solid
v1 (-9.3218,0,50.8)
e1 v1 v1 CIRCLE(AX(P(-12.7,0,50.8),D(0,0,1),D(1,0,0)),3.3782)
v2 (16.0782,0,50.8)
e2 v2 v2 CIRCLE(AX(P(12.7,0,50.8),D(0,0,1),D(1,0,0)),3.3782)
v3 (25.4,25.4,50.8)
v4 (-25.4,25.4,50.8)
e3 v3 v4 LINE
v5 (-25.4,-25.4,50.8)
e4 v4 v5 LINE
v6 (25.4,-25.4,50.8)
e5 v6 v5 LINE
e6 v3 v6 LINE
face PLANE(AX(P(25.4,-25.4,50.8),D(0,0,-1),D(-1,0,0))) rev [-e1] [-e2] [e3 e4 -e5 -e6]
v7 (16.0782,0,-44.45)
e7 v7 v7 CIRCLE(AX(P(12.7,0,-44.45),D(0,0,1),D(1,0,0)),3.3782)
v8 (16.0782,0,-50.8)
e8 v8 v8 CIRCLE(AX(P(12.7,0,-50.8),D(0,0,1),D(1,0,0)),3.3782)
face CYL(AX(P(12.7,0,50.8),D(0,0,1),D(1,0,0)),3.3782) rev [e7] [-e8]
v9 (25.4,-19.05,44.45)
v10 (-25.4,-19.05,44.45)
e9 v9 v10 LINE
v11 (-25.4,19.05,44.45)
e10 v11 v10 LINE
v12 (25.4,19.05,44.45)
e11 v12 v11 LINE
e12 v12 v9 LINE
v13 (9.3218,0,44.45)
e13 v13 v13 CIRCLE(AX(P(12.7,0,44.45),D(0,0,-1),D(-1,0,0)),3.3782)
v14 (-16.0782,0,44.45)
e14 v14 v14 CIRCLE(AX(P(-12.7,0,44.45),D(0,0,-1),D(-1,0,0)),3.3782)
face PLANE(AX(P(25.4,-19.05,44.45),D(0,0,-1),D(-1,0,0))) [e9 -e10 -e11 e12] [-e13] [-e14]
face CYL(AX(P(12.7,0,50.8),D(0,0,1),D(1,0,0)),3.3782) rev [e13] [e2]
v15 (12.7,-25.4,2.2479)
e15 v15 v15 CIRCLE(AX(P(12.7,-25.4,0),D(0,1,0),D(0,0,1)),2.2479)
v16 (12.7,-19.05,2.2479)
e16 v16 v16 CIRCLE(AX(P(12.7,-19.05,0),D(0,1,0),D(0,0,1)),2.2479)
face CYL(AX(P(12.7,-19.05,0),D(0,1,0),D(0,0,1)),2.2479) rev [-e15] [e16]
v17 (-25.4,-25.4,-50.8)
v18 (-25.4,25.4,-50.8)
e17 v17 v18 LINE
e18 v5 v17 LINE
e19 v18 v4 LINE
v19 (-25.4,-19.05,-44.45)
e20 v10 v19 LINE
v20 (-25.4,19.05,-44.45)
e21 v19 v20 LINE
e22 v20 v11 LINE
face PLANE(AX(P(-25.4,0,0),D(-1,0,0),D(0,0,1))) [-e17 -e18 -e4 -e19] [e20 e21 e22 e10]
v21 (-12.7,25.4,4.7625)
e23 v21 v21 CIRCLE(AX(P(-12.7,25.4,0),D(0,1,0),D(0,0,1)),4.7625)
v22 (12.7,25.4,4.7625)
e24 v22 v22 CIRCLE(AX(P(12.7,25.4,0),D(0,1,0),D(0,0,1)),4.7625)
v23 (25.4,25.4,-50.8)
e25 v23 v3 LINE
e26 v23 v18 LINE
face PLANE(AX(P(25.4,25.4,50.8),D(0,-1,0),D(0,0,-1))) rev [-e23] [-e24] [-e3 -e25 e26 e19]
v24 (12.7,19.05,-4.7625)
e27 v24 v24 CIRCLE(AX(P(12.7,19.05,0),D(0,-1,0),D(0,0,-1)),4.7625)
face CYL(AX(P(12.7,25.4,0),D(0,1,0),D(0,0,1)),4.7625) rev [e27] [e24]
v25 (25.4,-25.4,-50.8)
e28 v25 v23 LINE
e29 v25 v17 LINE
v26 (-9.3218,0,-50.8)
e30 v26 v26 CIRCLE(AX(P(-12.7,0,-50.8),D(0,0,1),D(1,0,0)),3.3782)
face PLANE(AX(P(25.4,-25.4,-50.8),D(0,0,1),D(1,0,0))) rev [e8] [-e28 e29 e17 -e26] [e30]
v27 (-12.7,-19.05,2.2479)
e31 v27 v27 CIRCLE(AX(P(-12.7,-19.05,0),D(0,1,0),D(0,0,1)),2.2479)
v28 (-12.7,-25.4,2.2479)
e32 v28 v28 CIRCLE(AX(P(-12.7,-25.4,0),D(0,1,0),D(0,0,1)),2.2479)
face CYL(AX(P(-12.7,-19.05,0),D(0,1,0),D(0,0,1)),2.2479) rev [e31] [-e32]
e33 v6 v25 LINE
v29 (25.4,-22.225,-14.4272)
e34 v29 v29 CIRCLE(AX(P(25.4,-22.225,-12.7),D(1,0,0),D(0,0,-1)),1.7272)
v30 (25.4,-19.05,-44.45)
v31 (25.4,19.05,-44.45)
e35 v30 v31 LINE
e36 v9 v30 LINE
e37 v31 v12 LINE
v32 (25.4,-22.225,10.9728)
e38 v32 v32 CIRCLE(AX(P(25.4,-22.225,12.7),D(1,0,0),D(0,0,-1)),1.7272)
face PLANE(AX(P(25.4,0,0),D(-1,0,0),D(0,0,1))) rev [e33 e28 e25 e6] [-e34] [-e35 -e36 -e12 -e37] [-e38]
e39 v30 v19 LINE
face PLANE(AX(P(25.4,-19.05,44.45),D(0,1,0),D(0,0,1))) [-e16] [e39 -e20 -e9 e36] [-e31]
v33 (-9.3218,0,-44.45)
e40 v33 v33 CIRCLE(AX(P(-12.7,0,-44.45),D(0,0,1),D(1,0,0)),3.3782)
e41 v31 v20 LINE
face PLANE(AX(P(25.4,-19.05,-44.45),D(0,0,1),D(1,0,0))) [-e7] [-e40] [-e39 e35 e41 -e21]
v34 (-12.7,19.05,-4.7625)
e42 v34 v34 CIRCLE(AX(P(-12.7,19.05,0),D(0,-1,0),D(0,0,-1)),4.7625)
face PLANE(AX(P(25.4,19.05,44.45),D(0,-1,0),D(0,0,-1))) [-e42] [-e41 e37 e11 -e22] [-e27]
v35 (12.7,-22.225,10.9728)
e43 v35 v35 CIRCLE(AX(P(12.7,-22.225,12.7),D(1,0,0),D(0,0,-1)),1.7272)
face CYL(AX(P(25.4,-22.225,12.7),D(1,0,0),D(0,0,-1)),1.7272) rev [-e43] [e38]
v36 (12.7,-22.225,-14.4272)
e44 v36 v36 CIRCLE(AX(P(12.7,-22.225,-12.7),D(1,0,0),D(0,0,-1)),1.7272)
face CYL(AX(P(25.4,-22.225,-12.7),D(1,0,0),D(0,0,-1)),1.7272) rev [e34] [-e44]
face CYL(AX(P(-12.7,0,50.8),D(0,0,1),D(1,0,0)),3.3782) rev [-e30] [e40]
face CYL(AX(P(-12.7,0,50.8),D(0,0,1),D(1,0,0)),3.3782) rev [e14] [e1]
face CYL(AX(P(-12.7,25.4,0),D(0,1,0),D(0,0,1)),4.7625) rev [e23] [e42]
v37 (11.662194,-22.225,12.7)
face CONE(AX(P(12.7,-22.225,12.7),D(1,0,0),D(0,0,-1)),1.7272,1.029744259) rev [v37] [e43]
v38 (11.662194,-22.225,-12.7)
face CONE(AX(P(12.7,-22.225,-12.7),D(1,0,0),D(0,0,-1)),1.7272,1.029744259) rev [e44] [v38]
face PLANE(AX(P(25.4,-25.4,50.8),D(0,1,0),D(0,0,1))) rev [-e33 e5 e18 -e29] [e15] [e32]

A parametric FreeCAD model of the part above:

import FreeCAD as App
import Part
import Sketcher

V = App.Vector
Q = App.Units.Quantity


def add_polygon(sketch, points):
    """Adds a closed chain of lines whose ends are joined by coincident constraints."""
    first, n = sketch.GeometryCount, len(points)
    for a, b in zip(points, points[1:] + points[:1]):
        sketch.addGeometry(Part.LineSegment(App.Vector(*a, 0), App.Vector(*b, 0)), False)
    for i in range(n):
        sketch.addConstraint(Sketcher.Constraint("Coincident", first + i, 2, first + (i + 1) % n, 1))

doc = App.newDocument("Part")
body = doc.addObject("PartDesign::Body", "Body")

sketch1 = body.newObject("Sketcher::SketchObject", "Sketch")
sketch1.AttachmentSupport = (doc.getObject("YZ_Plane"), [""])
sketch1.MapMode = "FlatFace"
add_polygon(sketch1, [(25.4, 50.8), (-25.4, 50.8), (-25.4, -50.8), (25.4, -50.8)])
add_polygon(sketch1, [(-19.05, -44.45), (-19.05, 44.45), (19.05, 44.45), (19.05, -44.45)])
sketch1.addConstraint([
    Sketcher.Constraint("Horizontal", 0),
    Sketcher.Constraint("Vertical", 1),
    Sketcher.Constraint("Horizontal", 2),
    Sketcher.Constraint("Vertical", 3),
    Sketcher.Constraint("Vertical", 4),
    Sketcher.Constraint("Horizontal", 5),
    Sketcher.Constraint("Vertical", 6),
    Sketcher.Constraint("Horizontal", 7),
    Sketcher.Constraint("Symmetric", 0, 2, 2, 2, -1, 1),
    Sketcher.Constraint("Symmetric", 4, 2, 6, 2, -1, 1),
    Sketcher.Constraint("DistanceX", 0, 2, 0, 1, Q("2 in")),
    Sketcher.Constraint("DistanceY", 1, 2, 1, 1, Q("4 in")),
    Sketcher.Constraint("DistanceX", 5, 1, 5, 2, Q("1.5 in")),
    Sketcher.Constraint("DistanceY", 4, 1, 4, 2, Q("3.5 in")),
])
pad1 = body.newObject("PartDesign::Pad", "Pad")
pad1.Profile = sketch1
pad1.Length = Q("2 in")
pad1.Midplane = True

sketch2 = body.newObject("Sketcher::SketchObject", "Sketch001")
sketch2.AttachmentSupport = (doc.getObject("XY_Plane"), [""])
sketch2.MapMode = "FlatFace"
sketch2.AttachmentOffset = App.Placement(V(0, 0, 2 * 25.4), App.Rotation())
sketch2.addGeometry([
    Part.Circle(V(-12.7, 0, 0), V(0, 0, 1), 3.3782),
    Part.Circle(V(12.7, 0, 0), V(0, 0, 1), 3.3782),
], False)
sketch2.addConstraint([
    Sketcher.Constraint("Equal", 0, 1),
    Sketcher.Constraint("Symmetric", 0, 3, 1, 3, -1, 1),
    Sketcher.Constraint("PointOnObject", 0, 3, -1),
    Sketcher.Constraint("Diameter", 0, Q("0.266 in")),
    Sketcher.Constraint("DistanceX", 0, 3, 1, 3, Q("1 in")),
])
doc.recompute()
hole = body.newObject("PartDesign::Hole", "Hole")
hole.Profile = sketch2
hole.ThreadType = "None"
hole.Diameter = Q("0.266 in")
hole.DepthType = "ThroughAll"

sketch3 = body.newObject("Sketcher::SketchObject", "Sketch002")
sketch3.AttachmentSupport = (doc.getObject("XZ_Plane"), [""])
sketch3.MapMode = "FlatFace"
sketch3.AttachmentOffset = App.Placement(V(0, 0, 0.75 * 25.4), App.Rotation())
sketch3.addGeometry(Part.Circle(V(12.7, 0, 0), V(0, 0, 1), 2.2479), False)
sketch3.addConstraint([
    Sketcher.Constraint("PointOnObject", 0, 3, -1),
    Sketcher.Constraint("Diameter", 0, Q("0.177 in")),
    Sketcher.Constraint("DistanceX", -1, 1, 0, 3, Q("0.5 in")),
])
doc.recompute()
hole2 = body.newObject("PartDesign::Hole", "Hole001")
hole2.Profile = sketch3
hole2.ThreadType = "None"
hole2.Diameter = Q("0.177 in")
hole2.DepthType = "Dimension"
hole2.Depth = Q("0.25 in")
hole2.DrillPoint = "Flat"
hole2.Reversed = True
doc.recompute()

mirrored = body.newObject("PartDesign::Mirrored", "Mirrored")
mirrored.Originals = [hole2]
mirrored.MirrorPlane = (doc.getObject("YZ_Plane"), [""])
body.Tip = mirrored

sketch4 = body.newObject("Sketcher::SketchObject", "Sketch003")
sketch4.AttachmentSupport = (doc.getObject("XZ_Plane"), [""])
sketch4.MapMode = "FlatFace"
sketch4.AttachmentOffset = App.Placement(V(0, 0, -1 * 25.4), App.Rotation())
sketch4.addGeometry([
    Part.Circle(V(-12.7, 0, 0), V(0, 0, 1), 4.7625),
    Part.Circle(V(12.7, 0, 0), V(0, 0, 1), 4.7625),
], False)
sketch4.addConstraint([
    Sketcher.Constraint("Equal", 0, 1),
    Sketcher.Constraint("Symmetric", 0, 3, 1, 3, -1, 1),
    Sketcher.Constraint("PointOnObject", 0, 3, -1),
    Sketcher.Constraint("Diameter", 0, Q("0.375 in")),
    Sketcher.Constraint("DistanceX", 0, 3, 1, 3, Q("1 in")),
])
doc.recompute()
hole3 = body.newObject("PartDesign::Hole", "Hole002")
hole3.Profile = sketch4
hole3.ThreadType = "None"
hole3.Diameter = Q("0.375 in")
hole3.DepthType = "Dimension"
hole3.Depth = Q("0.25 in")
hole3.DrillPoint = "Flat"
hole3.Reversed = True

sketch5 = body.newObject("Sketcher::SketchObject", "Sketch004")
sketch5.AttachmentSupport = (doc.getObject("YZ_Plane"), [""])
sketch5.MapMode = "FlatFace"
sketch5.AttachmentOffset = App.Placement(V(0, 0, 1 * 25.4), App.Rotation())
sketch5.addGeometry([
    Part.Circle(V(-22.225, -12.7, 0), V(0, 0, 1), 1.7272),
    Part.Circle(V(-22.225, 12.7, 0), V(0, 0, 1), 1.7272),
], False)
sketch5.addConstraint([
    Sketcher.Constraint("Equal", 0, 1),
    Sketcher.Constraint("Symmetric", 0, 3, 1, 3, -1),
    Sketcher.Constraint("Diameter", 0, Q("0.136 in")),
    Sketcher.Constraint("DistanceY", 0, 3, 1, 3, Q("1 in")),
    Sketcher.Constraint("DistanceX", 0, 3, -1, 1, Q("0.875 in")),
])
doc.recompute()
hole4 = body.newObject("PartDesign::Hole", "Hole003")
hole4.Profile = sketch5
hole4.ThreadType = "None"
hole4.Diameter = Q("0.136 in")
hole4.DepthType = "Dimension"
hole4.Depth = Q("0.5 in")
hole4.DrillPoint = "Angled"
hole4.DrillPointAngle = 118

doc.recompute()
